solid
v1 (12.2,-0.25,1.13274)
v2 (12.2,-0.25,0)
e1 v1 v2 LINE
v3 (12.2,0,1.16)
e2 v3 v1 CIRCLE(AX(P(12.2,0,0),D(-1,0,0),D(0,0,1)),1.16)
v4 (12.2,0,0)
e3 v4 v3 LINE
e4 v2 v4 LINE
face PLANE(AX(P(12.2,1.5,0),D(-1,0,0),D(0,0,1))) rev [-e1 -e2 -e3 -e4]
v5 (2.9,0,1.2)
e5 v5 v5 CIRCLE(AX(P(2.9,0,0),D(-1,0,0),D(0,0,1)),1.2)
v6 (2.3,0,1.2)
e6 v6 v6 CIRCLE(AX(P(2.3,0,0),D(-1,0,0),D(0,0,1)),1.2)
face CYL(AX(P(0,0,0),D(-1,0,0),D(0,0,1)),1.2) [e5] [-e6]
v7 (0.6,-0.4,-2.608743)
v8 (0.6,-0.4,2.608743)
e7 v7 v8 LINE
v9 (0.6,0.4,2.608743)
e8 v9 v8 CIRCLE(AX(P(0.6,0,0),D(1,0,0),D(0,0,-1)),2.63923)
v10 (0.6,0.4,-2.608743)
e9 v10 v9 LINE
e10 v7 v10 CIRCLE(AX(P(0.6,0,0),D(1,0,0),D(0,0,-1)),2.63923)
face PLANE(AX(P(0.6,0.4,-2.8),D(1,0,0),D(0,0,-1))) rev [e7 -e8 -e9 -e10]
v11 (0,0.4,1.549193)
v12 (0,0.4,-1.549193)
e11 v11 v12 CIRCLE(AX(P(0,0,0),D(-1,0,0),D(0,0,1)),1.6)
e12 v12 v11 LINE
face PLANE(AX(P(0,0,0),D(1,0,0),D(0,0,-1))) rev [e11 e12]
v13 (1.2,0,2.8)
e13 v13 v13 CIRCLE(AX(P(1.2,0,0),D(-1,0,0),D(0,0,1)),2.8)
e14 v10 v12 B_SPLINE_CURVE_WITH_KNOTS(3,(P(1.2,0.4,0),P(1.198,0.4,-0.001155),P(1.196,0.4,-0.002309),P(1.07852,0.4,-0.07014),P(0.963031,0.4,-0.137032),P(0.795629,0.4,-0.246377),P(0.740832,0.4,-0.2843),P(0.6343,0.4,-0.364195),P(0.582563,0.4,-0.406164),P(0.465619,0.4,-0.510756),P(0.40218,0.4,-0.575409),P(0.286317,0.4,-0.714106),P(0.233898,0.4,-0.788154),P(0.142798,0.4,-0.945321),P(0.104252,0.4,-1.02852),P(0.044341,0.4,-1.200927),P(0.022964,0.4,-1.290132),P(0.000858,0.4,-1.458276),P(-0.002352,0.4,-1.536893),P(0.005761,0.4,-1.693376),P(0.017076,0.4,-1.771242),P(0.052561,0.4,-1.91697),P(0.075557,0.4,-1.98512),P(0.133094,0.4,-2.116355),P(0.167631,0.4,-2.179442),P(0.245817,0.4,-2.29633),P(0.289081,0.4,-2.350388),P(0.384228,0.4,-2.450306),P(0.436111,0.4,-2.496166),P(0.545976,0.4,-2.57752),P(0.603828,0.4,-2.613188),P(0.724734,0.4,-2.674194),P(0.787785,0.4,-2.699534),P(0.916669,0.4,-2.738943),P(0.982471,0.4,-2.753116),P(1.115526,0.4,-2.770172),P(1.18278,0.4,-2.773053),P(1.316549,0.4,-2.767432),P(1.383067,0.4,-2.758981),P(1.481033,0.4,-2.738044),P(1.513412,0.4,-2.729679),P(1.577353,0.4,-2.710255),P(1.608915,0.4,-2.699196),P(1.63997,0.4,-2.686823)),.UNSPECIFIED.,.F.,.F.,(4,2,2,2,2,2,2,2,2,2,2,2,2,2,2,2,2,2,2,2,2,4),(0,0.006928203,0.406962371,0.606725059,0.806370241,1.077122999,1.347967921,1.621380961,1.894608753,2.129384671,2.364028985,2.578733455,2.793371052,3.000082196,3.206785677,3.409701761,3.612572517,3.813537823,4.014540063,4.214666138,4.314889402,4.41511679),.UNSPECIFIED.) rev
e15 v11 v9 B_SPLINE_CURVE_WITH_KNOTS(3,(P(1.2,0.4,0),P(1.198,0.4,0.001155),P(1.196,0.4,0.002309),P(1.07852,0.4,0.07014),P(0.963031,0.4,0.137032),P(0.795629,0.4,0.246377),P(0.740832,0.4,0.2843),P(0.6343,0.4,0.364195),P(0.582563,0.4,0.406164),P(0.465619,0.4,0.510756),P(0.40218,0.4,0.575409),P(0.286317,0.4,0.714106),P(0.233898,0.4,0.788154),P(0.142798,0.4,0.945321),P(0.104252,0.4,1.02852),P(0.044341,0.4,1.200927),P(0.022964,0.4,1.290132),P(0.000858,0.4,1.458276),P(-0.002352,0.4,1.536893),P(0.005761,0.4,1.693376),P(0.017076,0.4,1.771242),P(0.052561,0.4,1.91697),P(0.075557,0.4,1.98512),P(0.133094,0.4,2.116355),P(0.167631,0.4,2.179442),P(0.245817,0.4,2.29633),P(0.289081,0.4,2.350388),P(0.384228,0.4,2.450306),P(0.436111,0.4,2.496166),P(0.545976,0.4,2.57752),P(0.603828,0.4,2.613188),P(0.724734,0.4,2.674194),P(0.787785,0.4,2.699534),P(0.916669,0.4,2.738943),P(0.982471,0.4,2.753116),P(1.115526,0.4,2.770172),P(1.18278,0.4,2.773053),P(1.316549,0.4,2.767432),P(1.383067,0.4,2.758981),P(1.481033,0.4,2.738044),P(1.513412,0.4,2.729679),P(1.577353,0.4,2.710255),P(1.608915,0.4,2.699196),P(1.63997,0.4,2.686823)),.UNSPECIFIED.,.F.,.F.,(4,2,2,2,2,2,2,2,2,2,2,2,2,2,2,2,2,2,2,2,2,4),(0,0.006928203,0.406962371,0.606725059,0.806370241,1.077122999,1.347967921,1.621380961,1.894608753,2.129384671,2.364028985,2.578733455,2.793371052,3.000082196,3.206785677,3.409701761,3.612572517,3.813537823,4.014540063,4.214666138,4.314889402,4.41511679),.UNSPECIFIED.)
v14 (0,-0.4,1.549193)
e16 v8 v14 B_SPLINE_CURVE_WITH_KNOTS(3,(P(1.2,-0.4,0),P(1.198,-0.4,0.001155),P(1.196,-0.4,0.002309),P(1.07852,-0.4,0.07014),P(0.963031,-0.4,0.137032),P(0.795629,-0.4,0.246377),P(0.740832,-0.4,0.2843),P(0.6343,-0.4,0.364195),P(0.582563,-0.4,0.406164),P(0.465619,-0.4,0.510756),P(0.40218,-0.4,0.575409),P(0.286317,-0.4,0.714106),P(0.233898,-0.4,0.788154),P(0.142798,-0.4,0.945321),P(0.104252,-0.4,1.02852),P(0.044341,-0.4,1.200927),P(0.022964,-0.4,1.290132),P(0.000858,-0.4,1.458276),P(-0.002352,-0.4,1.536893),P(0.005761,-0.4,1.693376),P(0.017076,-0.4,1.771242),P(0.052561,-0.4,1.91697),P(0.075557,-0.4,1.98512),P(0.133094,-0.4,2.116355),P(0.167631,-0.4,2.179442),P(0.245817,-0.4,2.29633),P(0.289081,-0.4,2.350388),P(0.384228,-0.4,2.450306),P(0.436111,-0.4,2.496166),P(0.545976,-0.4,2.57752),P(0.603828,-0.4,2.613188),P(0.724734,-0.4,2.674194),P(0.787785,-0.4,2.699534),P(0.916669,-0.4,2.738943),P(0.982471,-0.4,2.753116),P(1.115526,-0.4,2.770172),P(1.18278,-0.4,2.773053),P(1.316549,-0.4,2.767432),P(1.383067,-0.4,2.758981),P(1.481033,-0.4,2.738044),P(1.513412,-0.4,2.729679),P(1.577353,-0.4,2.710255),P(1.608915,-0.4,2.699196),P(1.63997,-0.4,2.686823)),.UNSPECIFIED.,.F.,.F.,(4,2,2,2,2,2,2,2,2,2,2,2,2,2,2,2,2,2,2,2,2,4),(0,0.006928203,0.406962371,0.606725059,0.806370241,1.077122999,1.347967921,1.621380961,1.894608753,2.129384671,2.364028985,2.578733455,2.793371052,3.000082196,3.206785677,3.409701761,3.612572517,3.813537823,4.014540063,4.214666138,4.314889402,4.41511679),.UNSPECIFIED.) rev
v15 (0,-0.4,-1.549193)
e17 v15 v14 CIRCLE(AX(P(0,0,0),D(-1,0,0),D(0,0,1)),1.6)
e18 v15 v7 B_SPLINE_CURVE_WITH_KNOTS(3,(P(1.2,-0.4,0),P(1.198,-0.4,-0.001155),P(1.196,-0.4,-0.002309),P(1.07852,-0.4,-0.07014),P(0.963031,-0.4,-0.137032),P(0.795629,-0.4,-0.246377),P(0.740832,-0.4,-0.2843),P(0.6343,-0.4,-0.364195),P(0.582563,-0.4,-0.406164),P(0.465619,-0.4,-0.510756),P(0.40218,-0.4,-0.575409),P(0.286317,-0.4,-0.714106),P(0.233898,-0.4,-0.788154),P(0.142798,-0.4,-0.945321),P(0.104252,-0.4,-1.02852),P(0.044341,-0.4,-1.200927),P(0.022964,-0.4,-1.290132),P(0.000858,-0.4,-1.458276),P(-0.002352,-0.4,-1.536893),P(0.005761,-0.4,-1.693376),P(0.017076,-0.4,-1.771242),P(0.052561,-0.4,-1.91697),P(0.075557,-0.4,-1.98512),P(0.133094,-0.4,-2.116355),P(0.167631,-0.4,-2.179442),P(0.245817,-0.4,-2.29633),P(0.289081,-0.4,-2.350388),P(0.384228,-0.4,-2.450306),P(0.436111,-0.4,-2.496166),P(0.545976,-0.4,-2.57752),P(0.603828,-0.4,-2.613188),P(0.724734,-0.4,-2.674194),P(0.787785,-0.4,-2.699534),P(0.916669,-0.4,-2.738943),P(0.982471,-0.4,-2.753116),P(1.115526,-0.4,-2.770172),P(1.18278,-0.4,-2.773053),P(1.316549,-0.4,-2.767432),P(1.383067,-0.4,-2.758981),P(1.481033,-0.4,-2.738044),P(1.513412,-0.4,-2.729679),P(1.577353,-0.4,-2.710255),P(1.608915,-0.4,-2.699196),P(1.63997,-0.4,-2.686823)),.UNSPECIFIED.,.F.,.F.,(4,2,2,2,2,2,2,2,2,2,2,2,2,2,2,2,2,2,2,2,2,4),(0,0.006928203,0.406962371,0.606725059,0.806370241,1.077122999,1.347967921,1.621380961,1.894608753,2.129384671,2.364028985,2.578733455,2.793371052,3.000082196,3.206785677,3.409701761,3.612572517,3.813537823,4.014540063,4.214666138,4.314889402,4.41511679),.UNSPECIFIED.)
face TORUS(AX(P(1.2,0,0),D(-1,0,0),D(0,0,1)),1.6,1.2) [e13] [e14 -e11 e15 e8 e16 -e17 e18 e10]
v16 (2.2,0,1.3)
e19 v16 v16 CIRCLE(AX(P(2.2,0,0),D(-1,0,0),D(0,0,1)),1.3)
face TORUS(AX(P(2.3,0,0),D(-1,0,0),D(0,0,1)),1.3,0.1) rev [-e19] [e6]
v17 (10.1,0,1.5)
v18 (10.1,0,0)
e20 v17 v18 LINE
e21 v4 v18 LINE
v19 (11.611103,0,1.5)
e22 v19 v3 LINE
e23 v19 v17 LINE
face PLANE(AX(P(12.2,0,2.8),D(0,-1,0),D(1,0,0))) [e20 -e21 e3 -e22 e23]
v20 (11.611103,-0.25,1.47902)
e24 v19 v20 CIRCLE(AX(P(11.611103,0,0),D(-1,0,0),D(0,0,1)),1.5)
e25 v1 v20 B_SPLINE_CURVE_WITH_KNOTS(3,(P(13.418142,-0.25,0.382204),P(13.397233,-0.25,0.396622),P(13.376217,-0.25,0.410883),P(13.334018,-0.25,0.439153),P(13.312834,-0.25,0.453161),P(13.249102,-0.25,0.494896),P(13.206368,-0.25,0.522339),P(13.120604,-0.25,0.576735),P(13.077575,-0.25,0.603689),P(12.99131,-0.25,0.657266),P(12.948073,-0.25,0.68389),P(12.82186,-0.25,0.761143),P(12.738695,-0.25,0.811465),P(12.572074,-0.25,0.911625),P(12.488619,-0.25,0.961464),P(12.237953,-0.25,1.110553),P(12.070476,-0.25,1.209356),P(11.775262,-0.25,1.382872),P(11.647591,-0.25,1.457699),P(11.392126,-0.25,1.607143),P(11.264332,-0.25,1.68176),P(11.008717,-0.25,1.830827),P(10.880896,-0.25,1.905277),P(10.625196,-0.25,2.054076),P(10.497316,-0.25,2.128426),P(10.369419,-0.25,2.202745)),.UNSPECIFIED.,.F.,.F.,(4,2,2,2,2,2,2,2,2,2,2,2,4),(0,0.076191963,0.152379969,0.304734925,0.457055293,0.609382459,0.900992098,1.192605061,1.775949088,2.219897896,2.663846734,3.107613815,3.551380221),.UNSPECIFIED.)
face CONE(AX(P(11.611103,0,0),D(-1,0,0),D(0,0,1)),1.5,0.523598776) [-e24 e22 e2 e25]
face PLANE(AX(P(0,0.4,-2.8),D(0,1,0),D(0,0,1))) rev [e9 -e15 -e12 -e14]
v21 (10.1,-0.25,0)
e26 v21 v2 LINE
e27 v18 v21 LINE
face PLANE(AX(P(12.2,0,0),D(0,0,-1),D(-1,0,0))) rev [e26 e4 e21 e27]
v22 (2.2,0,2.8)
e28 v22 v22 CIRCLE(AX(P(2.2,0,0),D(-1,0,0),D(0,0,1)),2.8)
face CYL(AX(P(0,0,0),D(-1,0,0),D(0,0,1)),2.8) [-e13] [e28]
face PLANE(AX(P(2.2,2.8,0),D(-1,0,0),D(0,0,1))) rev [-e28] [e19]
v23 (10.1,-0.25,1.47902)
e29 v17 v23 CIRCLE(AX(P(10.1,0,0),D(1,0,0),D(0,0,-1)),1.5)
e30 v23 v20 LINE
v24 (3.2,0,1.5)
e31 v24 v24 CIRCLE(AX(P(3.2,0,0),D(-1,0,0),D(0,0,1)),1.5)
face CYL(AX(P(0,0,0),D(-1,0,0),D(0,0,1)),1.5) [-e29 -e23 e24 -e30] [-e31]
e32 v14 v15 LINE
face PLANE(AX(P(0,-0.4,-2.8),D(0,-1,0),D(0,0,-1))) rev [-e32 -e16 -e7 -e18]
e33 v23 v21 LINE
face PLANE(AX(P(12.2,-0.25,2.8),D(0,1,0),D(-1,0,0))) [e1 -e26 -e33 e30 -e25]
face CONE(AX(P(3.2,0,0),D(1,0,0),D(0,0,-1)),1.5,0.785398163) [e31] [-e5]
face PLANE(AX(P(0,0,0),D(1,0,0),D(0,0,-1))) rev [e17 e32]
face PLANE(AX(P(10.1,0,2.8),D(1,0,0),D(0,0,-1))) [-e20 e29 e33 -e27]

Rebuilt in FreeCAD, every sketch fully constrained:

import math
import FreeCAD as App
import Part
import Sketcher
Q = App.Units.Quantity


def add_polygon(sketch, points):
    """Adds a closed chain of lines whose ends are joined by coincident constraints."""
    first, n = sketch.GeometryCount, len(points)
    for a, b in zip(points, points[1:] + points[:1]):
        sketch.addGeometry(Part.LineSegment(App.Vector(*a, 0), App.Vector(*b, 0)), False)
    for i in range(n):
        sketch.addConstraint(Sketcher.Constraint("Coincident", first + i, 2, first + (i + 1) % n, 1))

doc = App.newDocument("Part")
body = doc.addObject("PartDesign::Body", "Body")

# Sketch on XY plane
sketch1 = doc.addObject("Sketcher::SketchObject", "Sketch")
body.addObject(sketch1)
sketch1.AttachmentSupport = (doc.XY_Plane, [""])
sketch1.MapMode = "FlatFace"
sketch1.addGeometry(Part.LineSegment(App.Vector(0, 1.6, 0), App.Vector(0, 0, 0)), False)
sketch1.addGeometry(Part.LineSegment(App.Vector(0, 0, 0), App.Vector(12.2, 0, 0)), False)
sketch1.addGeometry(Part.LineSegment(App.Vector(12.2, 0, 0), App.Vector(12.2, 1.5, 0)), False)
sketch1.addGeometry(Part.LineSegment(App.Vector(12.2, 1.5, 0), App.Vector(3.2, 1.5, 0)), False)
sketch1.addGeometry(Part.LineSegment(App.Vector(3.2, 1.5, 0), App.Vector(2.9, 1.2, 0)), False)
sketch1.addGeometry(Part.LineSegment(App.Vector(2.9, 1.2, 0), App.Vector(2.3, 1.2, 0)), False)
sketch1.addGeometry(Part.ArcOfCircle(Part.Circle(App.Vector(2.3, 1.3, 0), App.Vector(0, 0, 1), 0.1), math.radians(180), math.radians(270)), False)
sketch1.addGeometry(Part.LineSegment(App.Vector(2.2, 1.3, 0), App.Vector(2.2, 2.8, 0)), False)
sketch1.addGeometry(Part.LineSegment(App.Vector(2.2, 2.8, 0), App.Vector(1.2, 2.8, 0)), False)
sketch1.addGeometry(Part.ArcOfCircle(Part.Circle(App.Vector(1.2, 1.6, 0), App.Vector(0, 0, 1), 1.2), math.radians(90), math.radians(180)), False)
sketch1.addConstraint(Sketcher.Constraint("Coincident", 0, 2, 1, 1))
sketch1.addConstraint(Sketcher.Constraint("Coincident", 1, 2, 2, 1))
sketch1.addConstraint(Sketcher.Constraint("Coincident", 2, 2, 3, 1))
sketch1.addConstraint(Sketcher.Constraint("Coincident", 3, 2, 4, 1))
sketch1.addConstraint(Sketcher.Constraint("Coincident", 4, 2, 5, 1))
sketch1.addConstraint(Sketcher.Constraint("Tangent", 5, 2, 6, 2))
sketch1.addConstraint(Sketcher.Constraint("Tangent", 6, 1, 7, 1))
sketch1.addConstraint(Sketcher.Constraint("Coincident", 7, 2, 8, 1))
sketch1.addConstraint(Sketcher.Constraint("Tangent", 8, 2, 9, 1))
sketch1.addConstraint(Sketcher.Constraint("Tangent", 9, 2, 0, 1))
sketch1.addConstraint(Sketcher.Constraint("Vertical", 0))
sketch1.addConstraint(Sketcher.Constraint("Horizontal", 1))
sketch1.addConstraint(Sketcher.Constraint("Vertical", 2))
sketch1.addConstraint(Sketcher.Constraint("Horizontal", 3))
sketch1.addConstraint(Sketcher.Constraint("Horizontal", 5))
sketch1.addConstraint(Sketcher.Constraint("Vertical", 7))
sketch1.addConstraint(Sketcher.Constraint("Horizontal", 8))
sketch1.addConstraint(Sketcher.Constraint("Coincident", 0, 2, -1, 1))
sketch1.addConstraint(Sketcher.Constraint("Equal", 2, 7))
sketch1.addConstraint(Sketcher.Constraint("Radius", 6, 0.1))
sketch1.addConstraint(Sketcher.Constraint("Radius", 9, 1.2))
sketch1.addConstraint(Sketcher.Constraint("DistanceX", 3, 2, 3, 1, 9.0))
sketch1.addConstraint(Sketcher.Constraint("DistanceX", 8, 2, 8, 1, 1.0))
sketch1.addConstraint(Sketcher.Constraint("Angle", 4, Q("-135 deg")))
sketch1.addConstraint(Sketcher.Constraint("DistanceX", 1, 1, 1, 2, 12.2))
sketch1.addConstraint(Sketcher.Constraint("DistanceX", 5, 2, 5, 1, 0.6))
sketch1.addConstraint(Sketcher.Constraint("DistanceY", 0, 2, 0, 1, 1.6))
revolution = doc.addObject("PartDesign::Revolution", "Revolution")
body.addObject(revolution)
revolution.Profile = sketch1
revolution.ReferenceAxis = (sketch1, ["H_Axis"])
revolution.Angle = 360

# Sketch on XY plane
sketch2 = doc.addObject("Sketcher::SketchObject", "Sketch001")
body.addObject(sketch2)
sketch2.AttachmentSupport = (doc.XY_Plane, [""])
sketch2.MapMode = "FlatFace"
add_polygon(sketch2, [(0, 0.4), (0, -0.4), (0.6, -0.4), (0.6, 0.4)])  # lines 0-3
sketch2.addConstraint(Sketcher.Constraint("Vertical", 0))
sketch2.addConstraint(Sketcher.Constraint("Horizontal", 1))
sketch2.addConstraint(Sketcher.Constraint("Vertical", 2))
sketch2.addConstraint(Sketcher.Constraint("Horizontal", 3))
sketch2.addConstraint(Sketcher.Constraint("Symmetric", 0, 2, 3, 2, -1, 1))
sketch2.addConstraint(Sketcher.Constraint("DistanceX", 1, 1, 1, 2, 0.6))
sketch2.addConstraint(Sketcher.Constraint("DistanceY", 0, 2, 0, 1, 0.8))
pocket1 = doc.addObject("PartDesign::Pocket", "Pocket")
body.addObject(pocket1)
pocket1.Profile = sketch2
pocket1.Type = "ThroughAll"
pocket1.Midplane = True

# Sketch on XY plane
sketch3 = doc.addObject("Sketcher::SketchObject", "Sketch002")
body.addObject(sketch3)
sketch3.AttachmentSupport = (doc.XY_Plane, [""])
sketch3.MapMode = "FlatFace"
add_polygon(sketch3, [(12.2, 0), (12.7, 0), (12.7, 2), (11.6, 2), (11.6, 1.5), (12.2, 1.2)])  # lines 0-5
sketch3.addConstraint(Sketcher.Constraint("Horizontal", 0))
sketch3.addConstraint(Sketcher.Constraint("Vertical", 1))
sketch3.addConstraint(Sketcher.Constraint("Horizontal", 2))
sketch3.addConstraint(Sketcher.Constraint("Vertical", 3))
sketch3.addConstraint(Sketcher.Constraint("Vertical", 5))
sketch3.addConstraint(Sketcher.Constraint("PointOnObject", 0, 2, -1))
sketch3.addConstraint(Sketcher.Constraint("Equal", 0, 3))
sketch3.addConstraint(Sketcher.Constraint("Angle", 4, Q("-30 deg")))
sketch3.addConstraint(Sketcher.Constraint("DistanceY", 5, 2, 5, 1, 1.16))
sketch3.addConstraint(Sketcher.Constraint("DistanceY", -1, 1, 3, 2, 1.5))
sketch3.addConstraint(Sketcher.Constraint("DistanceX", -1, 1, 4, 2, 12.2))
sketch3.addConstraint(Sketcher.Constraint("DistanceX", 0, 1, 0, 2, 0.508))
groove = doc.addObject("PartDesign::Groove", "Groove")
body.addObject(groove)
groove.Profile = sketch3
groove.ReferenceAxis = (sketch3, ["H_Axis"])
groove.Angle = 360

# Sketch on XY plane
sketch4 = doc.addObject("Sketcher::SketchObject", "Sketch003")
body.addObject(sketch4)
sketch4.AttachmentSupport = (doc.XY_Plane, [""])
sketch4.MapMode = "FlatFace"
add_polygon(sketch4, [(10.1, 0), (10.1, -0.25), (12.2, -0.25), (12.2, 0)])  # lines 0-3
sketch4.addConstraint(Sketcher.Constraint("Vertical", 0))
sketch4.addConstraint(Sketcher.Constraint("Horizontal", 1))
sketch4.addConstraint(Sketcher.Constraint("Vertical", 2))
sketch4.addConstraint(Sketcher.Constraint("Horizontal", 3))
sketch4.addConstraint(Sketcher.Constraint("PointOnObject", 2, 2, -1))
sketch4.addConstraint(Sketcher.Constraint("DistanceX", 1, 1, 1, 2, 2.1))
sketch4.addConstraint(Sketcher.Constraint("DistanceY", 0, 2, 0, 1, 0.25))
sketch4.addConstraint(Sketcher.Constraint("DistanceX", -1, 1, 0, 2, 10.1))
pocket2 = doc.addObject("PartDesign::Pocket", "Pocket001")
body.addObject(pocket2)
pocket2.Profile = sketch4
pocket2.Type = "ThroughAll"
pocket2.Reversed = True

doc.recompute()
